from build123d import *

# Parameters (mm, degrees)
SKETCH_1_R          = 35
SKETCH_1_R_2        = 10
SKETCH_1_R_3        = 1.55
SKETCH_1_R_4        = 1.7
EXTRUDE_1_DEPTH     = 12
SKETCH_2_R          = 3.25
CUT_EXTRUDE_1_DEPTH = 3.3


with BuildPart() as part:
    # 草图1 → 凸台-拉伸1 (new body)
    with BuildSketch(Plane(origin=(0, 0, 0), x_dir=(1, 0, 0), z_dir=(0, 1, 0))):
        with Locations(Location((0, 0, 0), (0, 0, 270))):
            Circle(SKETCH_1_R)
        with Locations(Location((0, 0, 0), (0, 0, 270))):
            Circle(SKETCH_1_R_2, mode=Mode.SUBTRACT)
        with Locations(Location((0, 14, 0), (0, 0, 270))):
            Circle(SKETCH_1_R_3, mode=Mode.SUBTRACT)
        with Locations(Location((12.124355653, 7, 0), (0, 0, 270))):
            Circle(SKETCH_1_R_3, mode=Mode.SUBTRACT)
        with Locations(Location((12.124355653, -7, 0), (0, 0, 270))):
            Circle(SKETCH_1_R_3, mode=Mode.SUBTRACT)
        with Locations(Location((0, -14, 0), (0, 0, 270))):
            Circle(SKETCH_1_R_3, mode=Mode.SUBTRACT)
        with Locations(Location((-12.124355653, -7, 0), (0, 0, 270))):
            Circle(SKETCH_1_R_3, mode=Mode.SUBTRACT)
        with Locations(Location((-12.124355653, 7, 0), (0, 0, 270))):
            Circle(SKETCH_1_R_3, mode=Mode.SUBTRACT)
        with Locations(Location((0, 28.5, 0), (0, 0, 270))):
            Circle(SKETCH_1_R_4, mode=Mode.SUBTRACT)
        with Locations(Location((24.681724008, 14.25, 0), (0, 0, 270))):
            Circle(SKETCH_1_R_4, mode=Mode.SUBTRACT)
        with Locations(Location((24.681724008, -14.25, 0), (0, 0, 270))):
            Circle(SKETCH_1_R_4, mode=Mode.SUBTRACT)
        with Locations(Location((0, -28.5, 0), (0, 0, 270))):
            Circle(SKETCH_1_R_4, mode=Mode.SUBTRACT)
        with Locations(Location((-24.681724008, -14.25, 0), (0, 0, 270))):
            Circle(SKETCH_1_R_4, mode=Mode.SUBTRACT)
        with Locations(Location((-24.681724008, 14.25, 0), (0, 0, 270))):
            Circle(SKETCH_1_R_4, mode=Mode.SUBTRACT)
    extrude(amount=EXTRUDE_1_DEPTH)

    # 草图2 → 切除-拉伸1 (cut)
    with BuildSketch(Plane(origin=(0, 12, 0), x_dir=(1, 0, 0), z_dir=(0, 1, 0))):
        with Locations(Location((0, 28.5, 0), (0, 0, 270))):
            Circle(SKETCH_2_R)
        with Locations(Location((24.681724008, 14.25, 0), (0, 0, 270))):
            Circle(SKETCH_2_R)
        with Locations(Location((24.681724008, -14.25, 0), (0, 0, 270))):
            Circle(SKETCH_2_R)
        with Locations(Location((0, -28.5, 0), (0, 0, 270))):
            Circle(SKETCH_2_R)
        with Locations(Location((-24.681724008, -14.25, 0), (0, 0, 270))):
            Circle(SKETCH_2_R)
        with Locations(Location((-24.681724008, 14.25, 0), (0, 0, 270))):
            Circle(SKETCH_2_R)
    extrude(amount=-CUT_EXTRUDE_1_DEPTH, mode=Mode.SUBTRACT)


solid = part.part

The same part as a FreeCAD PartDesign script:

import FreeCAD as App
import Part
import Sketcher

V = App.Vector
Q = App.Units.Quantity

doc = App.newDocument("Part")
params = doc.addObject("Spreadsheet::Sheet", "Params")
for row, (alias, value) in enumerate([
    ("sketch1_diameter", "70 mm"),
    ("sketch1_diameter2", "20 mm"),
    ("sketch1_diameter3", "3.4 mm"),
    ("sketch1_diameter4", "3.1 mm"),
    ("pad1_length", "12 mm"),
    ("sketch2_diameter", "6.5 mm"),
    ("pocket1_length", "3.3 mm"),
], start=1):
    params.set(f"A{row}", alias)
    params.set(f"B{row}", "=" + value)
    params.setAlias(f"B{row}", alias)

body = doc.addObject("PartDesign::Body", "Body")

sketch1 = doc.addObject("Sketcher::SketchObject", "Sketch")
body.addObject(sketch1)
sketch1.AttachmentSupport = (doc.XZ_Plane, [""])
sketch1.MapMode = "FlatFace"
sketch1.addGeometry([
    Part.Circle(V(0, 0, 0), V(0, 0, 1), 35),
    Part.Circle(V(-24.681724, -14.25, 0), V(0, 0, 1), 1.7),
    Part.Circle(V(0, -28.5, 0), V(0, 0, 1), 1.7),
    Part.Circle(V(-12.124356, -7, 0), V(0, 0, 1), 1.55),
    Part.Circle(V(0, -14, 0), V(0, 0, 1), 1.55),
    Part.Circle(V(-24.681724, 14.25, 0), V(0, 0, 1), 1.7),
    Part.Circle(V(-12.124356, 7, 0), V(0, 0, 1), 1.55),
    Part.Circle(V(12.124356, -7, 0), V(0, 0, 1), 1.55),
    Part.Circle(V(24.681724, -14.25, 0), V(0, 0, 1), 1.7),
    Part.Circle(V(0, 0, 0), V(0, 0, 1), 10),
    Part.Circle(V(0, 14, 0), V(0, 0, 1), 1.55),
    Part.Circle(V(12.124356, 7, 0), V(0, 0, 1), 1.55),
    Part.Circle(V(0, 28.5, 0), V(0, 0, 1), 1.7),
    Part.Circle(V(24.681724, 14.25, 0), V(0, 0, 1), 1.7),
], False)
sketch1.addConstraint([
    Sketcher.Constraint("Coincident", 0, 3, -1, 1),
    Sketcher.Constraint("Coincident", 9, 3, -1, 1),
    Sketcher.Constraint("Equal", 1, 2),
    Sketcher.Constraint("Equal", 3, 4),
    Sketcher.Constraint("Equal", 2, 5),
    Sketcher.Constraint("Equal", 4, 6),
    Sketcher.Constraint("Equal", 6, 7),
    Sketcher.Constraint("Equal", 5, 8),
    Sketcher.Constraint("Equal", 7, 10),
    Sketcher.Constraint("Equal", 10, 11),
    Sketcher.Constraint("Equal", 8, 12),
    Sketcher.Constraint("Equal", 12, 13),
    Sketcher.Constraint("Symmetric", 6, 3, 7, 3, -1, 1),
    Sketcher.Constraint("Symmetric", 5, 3, 8, 3, -1, 1),
    Sketcher.Constraint("Symmetric", 4, 3, 10, 3, -1, 1),
    Sketcher.Constraint("Symmetric", 3, 3, 11, 3, -1, 1),
    Sketcher.Constraint("Symmetric", 2, 3, 12, 3, -1, 1),
    Sketcher.Constraint("Symmetric", 1, 3, 13, 3, -1, 1),
    Sketcher.Constraint("Symmetric", 3, 3, 7, 3, -2),
    Sketcher.Constraint("Symmetric", 1, 3, 8, 3, -2),
    Sketcher.Constraint("PointOnObject", 2, 3, -2),
    Sketcher.Constraint("PointOnObject", 4, 3, -2),
    Sketcher.Constraint("Diameter", 0, Q("70 mm")),
    Sketcher.Constraint("Diameter", 9, Q("20 mm")),
    Sketcher.Constraint("Diameter", 1, Q("3.4 mm")),
    Sketcher.Constraint("Diameter", 3, Q("3.1 mm")),
    Sketcher.Constraint("DistanceY", 3, 3, -1, 1, Q("7 mm")),
    Sketcher.Constraint("DistanceY", 4, 3, -1, 1, Q("14 mm")),
    Sketcher.Constraint("DistanceY", 2, 3, -1, 1, Q("28.5 mm")),
    Sketcher.Constraint("DistanceY", 1, 3, 5, 3, Q("28.5 mm")),
    Sketcher.Constraint("DistanceX", 1, 3, 3, 3, Q("12.557368 mm")),
    Sketcher.Constraint("DistanceX", 3, 3, 7, 3, Q("24.248711 mm")),
])
sketch1.setExpression("Constraints[22]", "Params.sketch1_diameter")
sketch1.setExpression("Constraints[23]", "Params.sketch1_diameter2")
sketch1.setExpression("Constraints[24]", "Params.sketch1_diameter3")
sketch1.setExpression("Constraints[25]", "Params.sketch1_diameter4")
pad1 = doc.addObject("PartDesign::Pad", "Pad")
body.addObject(pad1)
pad1.Profile = sketch1
pad1.setExpression("Length", "Params.pad1_length")
pad1.Reversed = True

sketch2 = doc.addObject("Sketcher::SketchObject", "Sketch001")
body.addObject(sketch2)
sketch2.AttachmentSupport = (doc.XZ_Plane, [""])
sketch2.MapMode = "FlatFace"
sketch2.AttachmentOffset = App.Placement(V(0, 0, -12), App.Rotation())
sketch2.addGeometry([
    Part.Circle(V(0, -28.5, 0), V(0, 0, 1), 3.25),
    Part.Circle(V(24.681724, -14.25, 0), V(0, 0, 1), 3.25),
    Part.Circle(V(24.681724, 14.25, 0), V(0, 0, 1), 3.25),
    Part.Circle(V(0, 28.5, 0), V(0, 0, 1), 3.25),
    Part.Circle(V(-24.681724, 14.25, 0), V(0, 0, 1), 3.25),
    Part.Circle(V(-24.681724, -14.25, 0), V(0, 0, 1), 3.25),
], False)
sketch2.addConstraint([
    Sketcher.Constraint("Equal", 0, 1),
    Sketcher.Constraint("Equal", 1, 2),
    Sketcher.Constraint("Equal", 2, 3),
    Sketcher.Constraint("Equal", 3, 4),
    Sketcher.Constraint("Equal", 4, 5),
    Sketcher.Constraint("Symmetric", 0, 3, 3, 3, -1, 1),
    Sketcher.Constraint("Symmetric", 1, 3, 4, 3, -1, 1),
    Sketcher.Constraint("Symmetric", 2, 3, 5, 3, -1, 1),
    Sketcher.Constraint("Symmetric", 2, 3, 4, 3, -2),
    Sketcher.Constraint("PointOnObject", 0, 3, -2),
    Sketcher.Constraint("Diameter", 0, Q("6.5 mm")),
    Sketcher.Constraint("DistanceY", 0, 3, 3, 3, Q("57 mm")),
    Sketcher.Constraint("DistanceY", 1, 3, 2, 3, Q("28.5 mm")),
    Sketcher.Constraint("DistanceX", 4, 3, 2, 3, Q("49.363448 mm")),
])
sketch2.setExpression("Constraints[10]", "Params.sketch2_diameter")
pocket1 = doc.addObject("PartDesign::Pocket", "Pocket")
body.addObject(pocket1)
pocket1.Profile = sketch2
pocket1.setExpression("Length", "Params.pocket1_length")
pocket1.Reversed = True

doc.recompute()
